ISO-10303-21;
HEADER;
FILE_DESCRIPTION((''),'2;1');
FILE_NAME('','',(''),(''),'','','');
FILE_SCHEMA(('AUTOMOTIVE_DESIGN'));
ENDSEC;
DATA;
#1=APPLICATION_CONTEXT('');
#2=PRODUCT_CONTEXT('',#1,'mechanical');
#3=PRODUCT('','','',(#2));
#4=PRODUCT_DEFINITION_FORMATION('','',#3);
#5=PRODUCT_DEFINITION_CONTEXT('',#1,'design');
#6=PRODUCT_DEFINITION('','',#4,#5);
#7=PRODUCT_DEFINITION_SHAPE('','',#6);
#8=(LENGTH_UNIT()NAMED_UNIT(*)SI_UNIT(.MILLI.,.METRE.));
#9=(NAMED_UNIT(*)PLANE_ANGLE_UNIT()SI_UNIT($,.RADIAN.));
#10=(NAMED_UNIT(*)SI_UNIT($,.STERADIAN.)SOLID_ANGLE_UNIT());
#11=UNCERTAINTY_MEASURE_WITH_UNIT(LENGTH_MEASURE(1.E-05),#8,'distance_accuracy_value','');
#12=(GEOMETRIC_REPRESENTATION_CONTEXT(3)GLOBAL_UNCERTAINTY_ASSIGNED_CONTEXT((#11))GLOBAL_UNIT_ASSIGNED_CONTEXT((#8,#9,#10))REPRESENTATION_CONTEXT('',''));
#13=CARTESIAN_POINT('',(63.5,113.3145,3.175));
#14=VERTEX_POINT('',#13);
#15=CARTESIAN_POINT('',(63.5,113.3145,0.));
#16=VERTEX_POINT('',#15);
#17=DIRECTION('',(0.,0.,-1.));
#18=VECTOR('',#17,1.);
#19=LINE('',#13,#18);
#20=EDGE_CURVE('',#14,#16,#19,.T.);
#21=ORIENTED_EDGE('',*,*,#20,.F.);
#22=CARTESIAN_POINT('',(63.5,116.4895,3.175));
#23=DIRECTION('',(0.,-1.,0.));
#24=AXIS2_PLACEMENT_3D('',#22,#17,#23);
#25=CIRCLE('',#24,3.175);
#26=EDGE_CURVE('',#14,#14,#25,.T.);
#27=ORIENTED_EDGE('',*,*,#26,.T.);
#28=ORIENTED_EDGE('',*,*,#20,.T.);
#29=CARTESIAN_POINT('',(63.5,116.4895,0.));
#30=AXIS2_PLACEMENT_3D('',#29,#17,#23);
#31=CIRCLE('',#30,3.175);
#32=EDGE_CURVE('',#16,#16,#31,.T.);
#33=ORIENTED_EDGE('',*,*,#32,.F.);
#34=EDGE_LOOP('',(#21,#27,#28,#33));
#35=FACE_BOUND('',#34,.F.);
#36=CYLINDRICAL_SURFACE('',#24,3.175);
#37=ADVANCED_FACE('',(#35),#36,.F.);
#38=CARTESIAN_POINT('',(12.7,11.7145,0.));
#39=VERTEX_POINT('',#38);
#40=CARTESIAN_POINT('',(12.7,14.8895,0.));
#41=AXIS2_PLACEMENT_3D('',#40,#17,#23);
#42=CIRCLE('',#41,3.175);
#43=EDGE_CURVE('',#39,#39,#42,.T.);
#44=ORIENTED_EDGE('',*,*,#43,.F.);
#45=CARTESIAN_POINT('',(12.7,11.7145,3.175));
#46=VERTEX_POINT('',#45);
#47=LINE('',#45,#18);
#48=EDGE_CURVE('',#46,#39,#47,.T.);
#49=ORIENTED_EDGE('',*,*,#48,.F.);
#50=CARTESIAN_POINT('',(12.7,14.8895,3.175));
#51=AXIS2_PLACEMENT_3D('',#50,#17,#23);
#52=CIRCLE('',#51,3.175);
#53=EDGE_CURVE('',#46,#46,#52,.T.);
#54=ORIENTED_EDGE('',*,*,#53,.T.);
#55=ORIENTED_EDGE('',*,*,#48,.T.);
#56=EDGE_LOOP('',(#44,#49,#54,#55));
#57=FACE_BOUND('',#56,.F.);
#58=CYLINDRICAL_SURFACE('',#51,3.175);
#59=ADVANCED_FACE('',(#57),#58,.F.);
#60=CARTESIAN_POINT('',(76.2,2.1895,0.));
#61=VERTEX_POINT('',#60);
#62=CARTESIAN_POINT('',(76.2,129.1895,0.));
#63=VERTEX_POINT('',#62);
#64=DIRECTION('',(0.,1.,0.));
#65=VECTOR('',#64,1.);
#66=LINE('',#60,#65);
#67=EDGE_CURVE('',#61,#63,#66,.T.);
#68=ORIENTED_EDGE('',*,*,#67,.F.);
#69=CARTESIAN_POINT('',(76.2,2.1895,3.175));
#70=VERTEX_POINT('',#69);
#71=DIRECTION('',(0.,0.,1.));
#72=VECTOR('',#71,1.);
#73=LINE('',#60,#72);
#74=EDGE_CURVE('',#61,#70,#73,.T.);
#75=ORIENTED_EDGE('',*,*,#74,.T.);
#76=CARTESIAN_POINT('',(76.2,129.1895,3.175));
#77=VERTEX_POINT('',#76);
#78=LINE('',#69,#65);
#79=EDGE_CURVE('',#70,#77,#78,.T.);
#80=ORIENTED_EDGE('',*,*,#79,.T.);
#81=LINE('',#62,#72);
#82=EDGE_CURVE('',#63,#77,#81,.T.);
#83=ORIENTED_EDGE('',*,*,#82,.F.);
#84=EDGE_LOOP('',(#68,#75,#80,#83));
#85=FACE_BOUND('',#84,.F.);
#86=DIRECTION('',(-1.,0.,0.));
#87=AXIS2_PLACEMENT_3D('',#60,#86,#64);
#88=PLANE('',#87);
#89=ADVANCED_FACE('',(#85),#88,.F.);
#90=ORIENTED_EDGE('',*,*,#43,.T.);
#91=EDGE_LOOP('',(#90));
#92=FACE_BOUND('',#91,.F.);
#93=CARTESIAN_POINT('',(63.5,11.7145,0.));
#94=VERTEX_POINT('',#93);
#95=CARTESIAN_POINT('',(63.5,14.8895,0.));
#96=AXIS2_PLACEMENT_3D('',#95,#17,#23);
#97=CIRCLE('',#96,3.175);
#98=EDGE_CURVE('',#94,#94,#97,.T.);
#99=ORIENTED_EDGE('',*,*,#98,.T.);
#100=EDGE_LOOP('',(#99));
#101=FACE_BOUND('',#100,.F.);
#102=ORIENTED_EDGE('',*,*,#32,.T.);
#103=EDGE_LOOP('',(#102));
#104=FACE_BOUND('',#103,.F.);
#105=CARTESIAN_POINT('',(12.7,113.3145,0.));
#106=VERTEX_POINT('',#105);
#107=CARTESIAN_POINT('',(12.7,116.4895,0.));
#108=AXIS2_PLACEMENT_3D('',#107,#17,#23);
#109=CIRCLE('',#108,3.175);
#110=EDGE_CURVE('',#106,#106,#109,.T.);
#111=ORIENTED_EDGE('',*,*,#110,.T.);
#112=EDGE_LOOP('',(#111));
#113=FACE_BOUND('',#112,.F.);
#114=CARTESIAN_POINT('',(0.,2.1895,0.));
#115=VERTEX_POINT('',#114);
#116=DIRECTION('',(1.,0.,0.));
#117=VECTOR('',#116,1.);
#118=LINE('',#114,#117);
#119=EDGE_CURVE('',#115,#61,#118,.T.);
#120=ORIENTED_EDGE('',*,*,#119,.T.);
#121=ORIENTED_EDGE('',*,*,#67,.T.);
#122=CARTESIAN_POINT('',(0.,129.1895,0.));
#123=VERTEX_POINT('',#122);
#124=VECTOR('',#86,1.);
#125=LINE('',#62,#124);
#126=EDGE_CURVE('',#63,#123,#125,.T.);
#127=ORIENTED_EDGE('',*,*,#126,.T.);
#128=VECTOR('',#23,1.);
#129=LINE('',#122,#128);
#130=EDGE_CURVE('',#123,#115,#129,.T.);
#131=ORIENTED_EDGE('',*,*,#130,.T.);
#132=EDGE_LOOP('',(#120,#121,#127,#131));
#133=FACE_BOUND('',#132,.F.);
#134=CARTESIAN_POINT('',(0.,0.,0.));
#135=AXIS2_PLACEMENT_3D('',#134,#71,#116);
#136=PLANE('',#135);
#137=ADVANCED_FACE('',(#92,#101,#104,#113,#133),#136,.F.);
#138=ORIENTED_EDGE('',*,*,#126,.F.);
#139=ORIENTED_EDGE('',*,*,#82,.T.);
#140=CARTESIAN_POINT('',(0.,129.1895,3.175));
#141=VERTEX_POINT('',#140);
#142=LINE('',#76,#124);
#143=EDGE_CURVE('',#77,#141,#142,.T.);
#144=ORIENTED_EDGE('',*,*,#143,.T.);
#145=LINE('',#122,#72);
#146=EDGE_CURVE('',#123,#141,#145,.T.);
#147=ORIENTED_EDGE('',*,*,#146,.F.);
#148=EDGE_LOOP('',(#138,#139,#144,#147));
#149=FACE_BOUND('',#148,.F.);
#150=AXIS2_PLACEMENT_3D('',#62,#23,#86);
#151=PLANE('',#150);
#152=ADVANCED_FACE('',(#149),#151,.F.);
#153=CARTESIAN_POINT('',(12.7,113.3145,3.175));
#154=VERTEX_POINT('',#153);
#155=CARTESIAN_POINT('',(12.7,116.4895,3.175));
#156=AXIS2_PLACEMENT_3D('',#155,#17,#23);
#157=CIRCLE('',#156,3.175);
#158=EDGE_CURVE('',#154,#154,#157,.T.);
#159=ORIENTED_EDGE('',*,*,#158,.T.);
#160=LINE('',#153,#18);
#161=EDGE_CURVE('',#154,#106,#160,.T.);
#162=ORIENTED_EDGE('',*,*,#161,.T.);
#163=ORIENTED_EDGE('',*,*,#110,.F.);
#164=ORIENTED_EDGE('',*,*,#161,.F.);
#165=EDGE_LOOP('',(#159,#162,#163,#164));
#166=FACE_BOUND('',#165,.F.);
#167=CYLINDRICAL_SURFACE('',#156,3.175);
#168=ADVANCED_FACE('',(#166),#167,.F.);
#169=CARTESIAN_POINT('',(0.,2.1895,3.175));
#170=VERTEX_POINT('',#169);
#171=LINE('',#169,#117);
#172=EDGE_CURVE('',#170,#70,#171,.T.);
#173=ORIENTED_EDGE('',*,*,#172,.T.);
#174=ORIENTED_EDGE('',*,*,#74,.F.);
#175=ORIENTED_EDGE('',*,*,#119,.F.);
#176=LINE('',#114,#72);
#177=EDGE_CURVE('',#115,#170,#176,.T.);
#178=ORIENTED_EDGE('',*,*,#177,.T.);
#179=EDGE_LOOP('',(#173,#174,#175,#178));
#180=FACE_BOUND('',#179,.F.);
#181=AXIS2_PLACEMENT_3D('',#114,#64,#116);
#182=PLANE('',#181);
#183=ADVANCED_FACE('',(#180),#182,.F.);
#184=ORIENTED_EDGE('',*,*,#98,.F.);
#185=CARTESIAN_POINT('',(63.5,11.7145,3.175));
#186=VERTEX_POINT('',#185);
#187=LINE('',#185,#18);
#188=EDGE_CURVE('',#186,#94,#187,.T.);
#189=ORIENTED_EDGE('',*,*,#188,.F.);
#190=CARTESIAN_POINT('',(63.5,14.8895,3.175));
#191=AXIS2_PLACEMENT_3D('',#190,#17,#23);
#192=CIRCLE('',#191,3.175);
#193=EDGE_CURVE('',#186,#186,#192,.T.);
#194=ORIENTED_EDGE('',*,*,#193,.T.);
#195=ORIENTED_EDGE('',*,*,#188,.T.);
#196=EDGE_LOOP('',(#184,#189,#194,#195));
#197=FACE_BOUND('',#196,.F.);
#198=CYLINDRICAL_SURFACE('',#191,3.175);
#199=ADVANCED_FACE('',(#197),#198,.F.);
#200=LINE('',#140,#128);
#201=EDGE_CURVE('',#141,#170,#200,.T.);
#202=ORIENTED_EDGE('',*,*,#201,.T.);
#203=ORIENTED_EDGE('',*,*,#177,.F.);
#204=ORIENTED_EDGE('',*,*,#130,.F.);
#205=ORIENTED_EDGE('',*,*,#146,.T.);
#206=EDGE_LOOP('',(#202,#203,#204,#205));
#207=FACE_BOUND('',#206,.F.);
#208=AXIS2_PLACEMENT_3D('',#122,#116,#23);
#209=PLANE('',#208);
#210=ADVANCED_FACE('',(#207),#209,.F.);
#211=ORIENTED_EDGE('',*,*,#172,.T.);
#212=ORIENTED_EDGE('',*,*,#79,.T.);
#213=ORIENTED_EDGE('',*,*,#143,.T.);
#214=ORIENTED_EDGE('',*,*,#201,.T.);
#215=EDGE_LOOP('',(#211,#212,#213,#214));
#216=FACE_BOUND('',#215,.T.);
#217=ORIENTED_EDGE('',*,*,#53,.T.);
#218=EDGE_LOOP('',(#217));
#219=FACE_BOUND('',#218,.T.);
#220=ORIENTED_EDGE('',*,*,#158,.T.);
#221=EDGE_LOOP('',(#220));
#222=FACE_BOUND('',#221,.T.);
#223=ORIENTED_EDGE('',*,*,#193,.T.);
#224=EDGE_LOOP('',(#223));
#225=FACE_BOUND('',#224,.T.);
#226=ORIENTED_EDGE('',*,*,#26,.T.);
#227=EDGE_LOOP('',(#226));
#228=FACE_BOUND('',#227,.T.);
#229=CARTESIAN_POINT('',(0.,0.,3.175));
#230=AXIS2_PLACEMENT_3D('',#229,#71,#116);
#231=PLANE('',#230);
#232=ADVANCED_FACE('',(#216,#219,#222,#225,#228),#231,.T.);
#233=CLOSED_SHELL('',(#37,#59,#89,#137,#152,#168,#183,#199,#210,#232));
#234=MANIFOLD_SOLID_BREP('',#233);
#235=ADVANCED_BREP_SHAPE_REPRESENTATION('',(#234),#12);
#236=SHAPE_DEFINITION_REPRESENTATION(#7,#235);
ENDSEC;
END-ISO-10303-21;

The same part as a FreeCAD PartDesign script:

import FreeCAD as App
import Part
import Sketcher

V = App.Vector
Q = App.Units.Quantity


def add_polygon(sketch, points):
    """Adds a closed chain of lines whose ends are joined by coincident constraints."""
    first, n = sketch.GeometryCount, len(points)
    for a, b in zip(points, points[1:] + points[:1]):
        sketch.addGeometry(Part.LineSegment(App.Vector(*a, 0), App.Vector(*b, 0)), False)
    for i in range(n):
        sketch.addConstraint(Sketcher.Constraint("Coincident", first + i, 2, first + (i + 1) % n, 1))

doc = App.newDocument("Part")
body = doc.addObject("PartDesign::Body", "Body")

# Sketch on XY plane
sketch1 = body.newObject("Sketcher::SketchObject", "Sketch")
sketch1.AttachmentSupport = (doc.getObject("XY_Plane"), [""])
sketch1.MapMode = "FlatFace"
add_polygon(sketch1, [(0, 129), (0, 2), (76, 2), (76, 129)])  # lines 0-3
sketch1.addConstraint(Sketcher.Constraint("Vertical", 0))
sketch1.addConstraint(Sketcher.Constraint("Horizontal", 1))
sketch1.addConstraint(Sketcher.Constraint("Vertical", 2))
sketch1.addConstraint(Sketcher.Constraint("Horizontal", 3))
sketch1.addConstraint(Sketcher.Constraint("PointOnObject", 0, 2, -2))
sketch1.addConstraint(Sketcher.Constraint("DistanceX", 1, 1, 1, 2, Q("3 in")))
sketch1.addConstraint(Sketcher.Constraint("DistanceY", 0, 2, 0, 1, Q("5 in")))
sketch1.addConstraint(Sketcher.Constraint("DistanceY", -1, 1, 0, 2, Q("0.0862 in")))
pad1 = body.newObject("PartDesign::Pad", "Pad")
pad1.Profile = sketch1
pad1.Length = Q("0.125 in")

# Sketch on XY plane
sketch2 = body.newObject("Sketcher::SketchObject", "Sketch001")
sketch2.AttachmentSupport = (doc.getObject("XY_Plane"), [""])
sketch2.MapMode = "FlatFace"
sketch2.AttachmentOffset = App.Placement(V(0, 0, 0.125 * 25.4), App.Rotation())
sketch2.addGeometry(Part.Circle(V(12.7, 116.5, 0), V(0, 0, 1), 3.2), False)
sketch2.addGeometry(Part.Circle(V(63.5, 116.5, 0), V(0, 0, 1), 3.2), False)
sketch2.addGeometry(Part.Circle(V(12.7, 14.9, 0), V(0, 0, 1), 3.2), False)
sketch2.addGeometry(Part.Circle(V(63.5, 14.9, 0), V(0, 0, 1), 3.2), False)
sketch2.addConstraint(Sketcher.Constraint("Equal", 0, 1))
sketch2.addConstraint(Sketcher.Constraint("Equal", 1, 2))
sketch2.addConstraint(Sketcher.Constraint("Equal", 2, 3))
sketch2.addConstraint(Sketcher.Constraint("Horizontal", 0, 3, 1, 3))
sketch2.addConstraint(Sketcher.Constraint("Horizontal", 2, 3, 3, 3))
sketch2.addConstraint(Sketcher.Constraint("Vertical", 0, 3, 2, 3))
sketch2.addConstraint(Sketcher.Constraint("Vertical", 1, 3, 3, 3))
sketch2.addConstraint(Sketcher.Constraint("Diameter", 0, Q("0.25 in")))
sketch2.addConstraint(Sketcher.Constraint("DistanceX", 0, 3, 1, 3, Q("2 in")))
sketch2.addConstraint(Sketcher.Constraint("DistanceY", 2, 3, 0, 3, Q("4 in")))
sketch2.addConstraint(Sketcher.Constraint("DistanceX", -1, 1, 0, 3, Q("0.5 in")))
sketch2.addConstraint(Sketcher.Constraint("DistanceY", -1, 1, 0, 3, Q("4.5862 in")))
doc.recompute()
hole = body.newObject("PartDesign::Hole", "Hole")
hole.Profile = sketch2
hole.ThreadType = "None"
hole.Diameter = Q("0.25 in")
hole.DepthType = "ThroughAll"

doc.recompute()
